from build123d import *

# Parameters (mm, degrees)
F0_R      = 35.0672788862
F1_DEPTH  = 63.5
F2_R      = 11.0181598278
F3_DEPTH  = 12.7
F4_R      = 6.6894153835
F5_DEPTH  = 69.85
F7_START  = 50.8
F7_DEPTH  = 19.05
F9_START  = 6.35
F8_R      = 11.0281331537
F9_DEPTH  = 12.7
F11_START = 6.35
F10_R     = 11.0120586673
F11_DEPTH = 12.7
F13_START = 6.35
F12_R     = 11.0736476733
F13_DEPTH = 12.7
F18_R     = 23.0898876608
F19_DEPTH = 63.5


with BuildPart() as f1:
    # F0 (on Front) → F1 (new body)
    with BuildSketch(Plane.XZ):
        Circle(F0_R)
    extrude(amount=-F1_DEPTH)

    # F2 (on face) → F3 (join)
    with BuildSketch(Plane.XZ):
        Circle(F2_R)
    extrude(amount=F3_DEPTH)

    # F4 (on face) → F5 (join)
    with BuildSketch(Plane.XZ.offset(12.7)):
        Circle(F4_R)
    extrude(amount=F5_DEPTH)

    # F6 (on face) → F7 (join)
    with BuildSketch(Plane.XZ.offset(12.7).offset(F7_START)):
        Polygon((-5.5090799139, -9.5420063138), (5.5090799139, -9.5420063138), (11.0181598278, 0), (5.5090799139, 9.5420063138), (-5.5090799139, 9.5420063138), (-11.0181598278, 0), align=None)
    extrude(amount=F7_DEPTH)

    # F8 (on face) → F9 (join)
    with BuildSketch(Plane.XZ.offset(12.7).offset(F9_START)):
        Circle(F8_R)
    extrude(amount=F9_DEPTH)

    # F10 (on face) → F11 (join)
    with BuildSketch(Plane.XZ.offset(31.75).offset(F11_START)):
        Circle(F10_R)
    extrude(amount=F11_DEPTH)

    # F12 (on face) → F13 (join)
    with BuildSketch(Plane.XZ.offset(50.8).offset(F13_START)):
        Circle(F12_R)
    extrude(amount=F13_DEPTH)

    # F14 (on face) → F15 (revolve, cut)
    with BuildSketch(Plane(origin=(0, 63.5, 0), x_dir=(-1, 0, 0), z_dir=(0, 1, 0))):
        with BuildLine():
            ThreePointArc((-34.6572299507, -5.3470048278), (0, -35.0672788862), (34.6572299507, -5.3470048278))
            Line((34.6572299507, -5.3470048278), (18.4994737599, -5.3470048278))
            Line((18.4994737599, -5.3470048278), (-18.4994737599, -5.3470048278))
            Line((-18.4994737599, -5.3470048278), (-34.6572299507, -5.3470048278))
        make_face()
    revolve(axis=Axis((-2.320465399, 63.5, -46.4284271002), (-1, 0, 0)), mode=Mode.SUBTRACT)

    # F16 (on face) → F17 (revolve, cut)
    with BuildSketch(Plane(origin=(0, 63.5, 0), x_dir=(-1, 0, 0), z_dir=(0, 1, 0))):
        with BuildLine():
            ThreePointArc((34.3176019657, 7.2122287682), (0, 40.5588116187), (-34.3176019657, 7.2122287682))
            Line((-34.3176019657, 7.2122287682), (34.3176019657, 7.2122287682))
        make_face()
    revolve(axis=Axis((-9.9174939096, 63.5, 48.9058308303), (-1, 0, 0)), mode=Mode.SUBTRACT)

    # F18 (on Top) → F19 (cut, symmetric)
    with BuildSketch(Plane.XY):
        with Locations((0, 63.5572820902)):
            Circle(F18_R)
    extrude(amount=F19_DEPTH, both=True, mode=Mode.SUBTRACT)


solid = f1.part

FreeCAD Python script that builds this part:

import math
import FreeCAD as App
import Part
import Sketcher
Q = App.Units.Quantity

doc = App.newDocument("Part")
body = doc.addObject("PartDesign::Body", "Body")

# Sketch on XZ plane
sketch1 = body.newObject("Sketcher::SketchObject", "Sketch")
sketch1.AttachmentSupport = (doc.getObject("XZ_Plane"), [""])
sketch1.MapMode = "FlatFace"
sketch1.addGeometry(Part.Circle(App.Vector(0, 0, 0), App.Vector(0, 0, 1), 35), False)
sketch1.addConstraint([
    Sketcher.Constraint("Coincident", 0, 3, -1, 1),
    Sketcher.Constraint("Diameter", 0, Q("70.134558 mm")),
])
pad1 = body.newObject("PartDesign::Pad", "Pad")
pad1.Profile = sketch1
pad1.Length = Q("2.5 in")
pad1.Reversed = True

# Sketch on XZ plane
sketch2 = body.newObject("Sketcher::SketchObject", "Sketch001")
sketch2.AttachmentSupport = (doc.getObject("XZ_Plane"), [""])
sketch2.MapMode = "FlatFace"
sketch2.addGeometry(Part.Circle(App.Vector(0, 0, 0), App.Vector(0, 0, 1), 11), False)
sketch2.addConstraint([
    Sketcher.Constraint("Coincident", 0, 3, -1, 1),
    Sketcher.Constraint("Diameter", 0, Q("22.03632 mm")),
])
pad2 = body.newObject("PartDesign::Pad", "Pad001")
pad2.Profile = sketch2
pad2.Length = Q("0.5 in")

# Sketch on XZ plane
sketch3 = body.newObject("Sketcher::SketchObject", "Sketch002")
sketch3.AttachmentSupport = (doc.getObject("XZ_Plane"), [""])
sketch3.MapMode = "FlatFace"
sketch3.AttachmentOffset = App.Placement(App.Vector(0, 0, 0.5 * 25.4), App.Rotation())
sketch3.addGeometry(Part.Circle(App.Vector(0, 0, 0), App.Vector(0, 0, 1), 7), False)
sketch3.addConstraint([
    Sketcher.Constraint("Coincident", 0, 3, -1, 1),
    Sketcher.Constraint("Diameter", 0, Q("13.378831 mm")),
])
pad3 = body.newObject("PartDesign::Pad", "Pad002")
pad3.Profile = sketch3
pad3.Length = Q("2.75 in")

# Sketch on XZ plane
sketch4 = body.newObject("Sketcher::SketchObject", "Sketch003")
sketch4.AttachmentSupport = (doc.getObject("XZ_Plane"), [""])
sketch4.MapMode = "FlatFace"
sketch4.AttachmentOffset = App.Placement(App.Vector(0, 0, 2.5 * 25.4), App.Rotation())
sketch4.addGeometry([
    Part.LineSegment(App.Vector(-6, -10, 0), App.Vector(6, -10, 0)),  # 0
    Part.LineSegment(App.Vector(6, -10, 0), App.Vector(11, 0, 0)),  # 1
    Part.LineSegment(App.Vector(11, 0, 0), App.Vector(6, 10, 0)),  # 2
    Part.LineSegment(App.Vector(6, 10, 0), App.Vector(-6, 10, 0)),  # 3
    Part.LineSegment(App.Vector(-6, 10, 0), App.Vector(-11, 0, 0)),  # 4
    Part.LineSegment(App.Vector(-11, 0, 0), App.Vector(-6, -10, 0)),  # 5
], False)
sketch4.addConstraint([
    Sketcher.Constraint("Coincident", 0, 2, 1, 1),
    Sketcher.Constraint("Coincident", 1, 2, 2, 1),
    Sketcher.Constraint("Coincident", 2, 2, 3, 1),
    Sketcher.Constraint("Coincident", 3, 2, 4, 1),
    Sketcher.Constraint("Coincident", 4, 2, 5, 1),
    Sketcher.Constraint("Coincident", 5, 2, 0, 1),
    Sketcher.Constraint("Horizontal", 0),
    Sketcher.Constraint("Horizontal", 3),
    Sketcher.Constraint("Symmetric", 0, 2, 3, 2, -1, 1),
    Sketcher.Constraint("Symmetric", 1, 2, 4, 2, -1, 1),
    Sketcher.Constraint("PointOnObject", 1, 2, -1),
    Sketcher.Constraint("Parallel", 2, 5),
    Sketcher.Constraint("Vertical", 0, 2, 2, 2),
    Sketcher.Constraint("Angle", 1, Q("60 deg")),
    Sketcher.Constraint("DistanceX", 0, 1, 0, 2, Q("11.01816 mm")),
    Sketcher.Constraint("Distance", 1, Q("11.01816 mm")),
])
pad4 = body.newObject("PartDesign::Pad", "Pad003")
pad4.Profile = sketch4
pad4.Length = Q("0.75 in")

# Sketch on XZ plane
sketch5 = body.newObject("Sketcher::SketchObject", "Sketch004")
sketch5.AttachmentSupport = (doc.getObject("XZ_Plane"), [""])
sketch5.MapMode = "FlatFace"
sketch5.AttachmentOffset = App.Placement(App.Vector(0, 0, 0.75 * 25.4), App.Rotation())
sketch5.addGeometry(Part.Circle(App.Vector(0, 0, 0), App.Vector(0, 0, 1), 11), False)
sketch5.addConstraint([
    Sketcher.Constraint("Coincident", 0, 3, -1, 1),
    Sketcher.Constraint("Diameter", 0, Q("22.056266 mm")),
])
pad5 = body.newObject("PartDesign::Pad", "Pad004")
pad5.Profile = sketch5
pad5.Length = Q("0.5 in")

# Sketch on XZ plane
sketch6 = body.newObject("Sketcher::SketchObject", "Sketch005")
sketch6.AttachmentSupport = (doc.getObject("XZ_Plane"), [""])
sketch6.MapMode = "FlatFace"
sketch6.AttachmentOffset = App.Placement(App.Vector(0, 0, 1.5 * 25.4), App.Rotation())
sketch6.addGeometry(Part.Circle(App.Vector(0, 0, 0), App.Vector(0, 0, 1), 11), False)
sketch6.addConstraint([
    Sketcher.Constraint("Coincident", 0, 3, -1, 1),
    Sketcher.Constraint("Diameter", 0, Q("22.024117 mm")),
])
pad6 = body.newObject("PartDesign::Pad", "Pad005")
pad6.Profile = sketch6
pad6.Length = Q("0.5 in")

# Sketch on XZ plane
sketch7 = body.newObject("Sketcher::SketchObject", "Sketch006")
sketch7.AttachmentSupport = (doc.getObject("XZ_Plane"), [""])
sketch7.MapMode = "FlatFace"
sketch7.AttachmentOffset = App.Placement(App.Vector(0, 0, 2.25 * 25.4), App.Rotation())
sketch7.addGeometry(Part.Circle(App.Vector(0, 0, 0), App.Vector(0, 0, 1), 11), False)
sketch7.addConstraint([
    Sketcher.Constraint("Coincident", 0, 3, -1, 1),
    Sketcher.Constraint("Diameter", 0, Q("22.147295 mm")),
])
pad7 = body.newObject("PartDesign::Pad", "Pad006")
pad7.Profile = sketch7
pad7.Length = Q("0.5 in")

# Sketch on XZ plane
sketch8 = body.newObject("Sketcher::SketchObject", "Sketch007")
sketch8.AttachmentSupport = (doc.getObject("XZ_Plane"), [""])
sketch8.MapMode = "FlatFace"
sketch8.AttachmentOffset = App.Placement(App.Vector(0, 0, -2.5 * 25.4), App.Rotation())
sketch8.addGeometry([
    Part.ArcOfCircle(Part.Circle(App.Vector(0, 0, 0), App.Vector(0, 0, 1), 35), math.radians(-171), math.radians(-9)),
    Part.LineSegment(App.Vector(-35, -5, 0), App.Vector(35, -5, 0)),
], False)
sketch8.addGeometry(Part.LineSegment(App.Vector(35, -46, 0), App.Vector(-35, -46, 0)), True)  # axis
sketch8.addConstraint([
    Sketcher.Constraint("Coincident", 0, 1, 1, 1),
    Sketcher.Constraint("Coincident", 1, 2, 0, 2),
    Sketcher.Constraint("Horizontal", 1),
    Sketcher.Constraint("Horizontal", 2),
    Sketcher.Constraint("Coincident", 0, 3, -1, 1),
    Sketcher.Constraint("Vertical", 1, 2, 2, 1),
    Sketcher.Constraint("Vertical", 0, 1, 2, 2),
    Sketcher.Constraint("Radius", 0, Q("35.067279 mm")),
    Sketcher.Constraint("DistanceX", 1, 1, 1, 2, Q("69.31446 mm")),
    Sketcher.Constraint("DistanceY", 2, 1, -1, 1, Q("46.428427 mm")),
])
groove = body.newObject("PartDesign::Groove", "Groove")
groove.Profile = sketch8
groove.ReferenceAxis = (sketch8, ["Axis0"])
groove.Angle = 360

# Sketch on XZ plane
sketch9 = body.newObject("Sketcher::SketchObject", "Sketch008")
sketch9.AttachmentSupport = (doc.getObject("XZ_Plane"), [""])
sketch9.MapMode = "FlatFace"
sketch9.AttachmentOffset = App.Placement(App.Vector(0, 0, -2.5 * 25.4), App.Rotation())
sketch9.addGeometry([
    Part.ArcOfCircle(Part.Circle(App.Vector(0, 6, 0), App.Vector(0, 0, 1), 34), math.radians(2), math.radians(178)),
    Part.LineSegment(App.Vector(34, 7, 0), App.Vector(-34, 7, 0)),
], False)
sketch9.addGeometry(Part.LineSegment(App.Vector(34, 49, 0), App.Vector(-34, 49, 0)), True)  # axis
sketch9.addConstraint([
    Sketcher.Constraint("Coincident", 0, 1, 1, 1),
    Sketcher.Constraint("Coincident", 1, 2, 0, 2),
    Sketcher.Constraint("Horizontal", 1),
    Sketcher.Constraint("Horizontal", 2),
    Sketcher.Constraint("PointOnObject", 0, 3, -2),
    Sketcher.Constraint("Vertical", 0, 1, 2, 1),
    Sketcher.Constraint("Vertical", 1, 2, 2, 2),
    Sketcher.Constraint("Radius", 0, Q("34.33174 mm")),
    Sketcher.Constraint("DistanceX", -1, 1, 0, 1, Q("34.317602 mm")),
    Sketcher.Constraint("DistanceY", -1, 1, 0, 1, Q("7.212229 mm")),
    Sketcher.Constraint("DistanceY", -1, 1, 2, 1, Q("48.905831 mm")),
])
groove2 = body.newObject("PartDesign::Groove", "Groove001")
groove2.Profile = sketch9
groove2.ReferenceAxis = (sketch9, ["Axis0"])
groove2.Angle = 360

# Sketch on XY plane
sketch10 = body.newObject("Sketcher::SketchObject", "Sketch009")
sketch10.AttachmentSupport = (doc.getObject("XY_Plane"), [""])
sketch10.MapMode = "FlatFace"
sketch10.addGeometry(Part.Circle(App.Vector(0, 64, 0), App.Vector(0, 0, 1), 23), False)
sketch10.addConstraint([
    Sketcher.Constraint("PointOnObject", 0, 3, -2),
    Sketcher.Constraint("Diameter", 0, Q("46.179775 mm")),
    Sketcher.Constraint("DistanceY", -1, 1, 0, 3, Q("63.557282 mm")),
])
pocket1 = body.newObject("PartDesign::Pocket", "Pocket")
pocket1.Profile = sketch10
pocket1.Length = Q("5 in")
pocket1.Midplane = True

doc.recompute()
